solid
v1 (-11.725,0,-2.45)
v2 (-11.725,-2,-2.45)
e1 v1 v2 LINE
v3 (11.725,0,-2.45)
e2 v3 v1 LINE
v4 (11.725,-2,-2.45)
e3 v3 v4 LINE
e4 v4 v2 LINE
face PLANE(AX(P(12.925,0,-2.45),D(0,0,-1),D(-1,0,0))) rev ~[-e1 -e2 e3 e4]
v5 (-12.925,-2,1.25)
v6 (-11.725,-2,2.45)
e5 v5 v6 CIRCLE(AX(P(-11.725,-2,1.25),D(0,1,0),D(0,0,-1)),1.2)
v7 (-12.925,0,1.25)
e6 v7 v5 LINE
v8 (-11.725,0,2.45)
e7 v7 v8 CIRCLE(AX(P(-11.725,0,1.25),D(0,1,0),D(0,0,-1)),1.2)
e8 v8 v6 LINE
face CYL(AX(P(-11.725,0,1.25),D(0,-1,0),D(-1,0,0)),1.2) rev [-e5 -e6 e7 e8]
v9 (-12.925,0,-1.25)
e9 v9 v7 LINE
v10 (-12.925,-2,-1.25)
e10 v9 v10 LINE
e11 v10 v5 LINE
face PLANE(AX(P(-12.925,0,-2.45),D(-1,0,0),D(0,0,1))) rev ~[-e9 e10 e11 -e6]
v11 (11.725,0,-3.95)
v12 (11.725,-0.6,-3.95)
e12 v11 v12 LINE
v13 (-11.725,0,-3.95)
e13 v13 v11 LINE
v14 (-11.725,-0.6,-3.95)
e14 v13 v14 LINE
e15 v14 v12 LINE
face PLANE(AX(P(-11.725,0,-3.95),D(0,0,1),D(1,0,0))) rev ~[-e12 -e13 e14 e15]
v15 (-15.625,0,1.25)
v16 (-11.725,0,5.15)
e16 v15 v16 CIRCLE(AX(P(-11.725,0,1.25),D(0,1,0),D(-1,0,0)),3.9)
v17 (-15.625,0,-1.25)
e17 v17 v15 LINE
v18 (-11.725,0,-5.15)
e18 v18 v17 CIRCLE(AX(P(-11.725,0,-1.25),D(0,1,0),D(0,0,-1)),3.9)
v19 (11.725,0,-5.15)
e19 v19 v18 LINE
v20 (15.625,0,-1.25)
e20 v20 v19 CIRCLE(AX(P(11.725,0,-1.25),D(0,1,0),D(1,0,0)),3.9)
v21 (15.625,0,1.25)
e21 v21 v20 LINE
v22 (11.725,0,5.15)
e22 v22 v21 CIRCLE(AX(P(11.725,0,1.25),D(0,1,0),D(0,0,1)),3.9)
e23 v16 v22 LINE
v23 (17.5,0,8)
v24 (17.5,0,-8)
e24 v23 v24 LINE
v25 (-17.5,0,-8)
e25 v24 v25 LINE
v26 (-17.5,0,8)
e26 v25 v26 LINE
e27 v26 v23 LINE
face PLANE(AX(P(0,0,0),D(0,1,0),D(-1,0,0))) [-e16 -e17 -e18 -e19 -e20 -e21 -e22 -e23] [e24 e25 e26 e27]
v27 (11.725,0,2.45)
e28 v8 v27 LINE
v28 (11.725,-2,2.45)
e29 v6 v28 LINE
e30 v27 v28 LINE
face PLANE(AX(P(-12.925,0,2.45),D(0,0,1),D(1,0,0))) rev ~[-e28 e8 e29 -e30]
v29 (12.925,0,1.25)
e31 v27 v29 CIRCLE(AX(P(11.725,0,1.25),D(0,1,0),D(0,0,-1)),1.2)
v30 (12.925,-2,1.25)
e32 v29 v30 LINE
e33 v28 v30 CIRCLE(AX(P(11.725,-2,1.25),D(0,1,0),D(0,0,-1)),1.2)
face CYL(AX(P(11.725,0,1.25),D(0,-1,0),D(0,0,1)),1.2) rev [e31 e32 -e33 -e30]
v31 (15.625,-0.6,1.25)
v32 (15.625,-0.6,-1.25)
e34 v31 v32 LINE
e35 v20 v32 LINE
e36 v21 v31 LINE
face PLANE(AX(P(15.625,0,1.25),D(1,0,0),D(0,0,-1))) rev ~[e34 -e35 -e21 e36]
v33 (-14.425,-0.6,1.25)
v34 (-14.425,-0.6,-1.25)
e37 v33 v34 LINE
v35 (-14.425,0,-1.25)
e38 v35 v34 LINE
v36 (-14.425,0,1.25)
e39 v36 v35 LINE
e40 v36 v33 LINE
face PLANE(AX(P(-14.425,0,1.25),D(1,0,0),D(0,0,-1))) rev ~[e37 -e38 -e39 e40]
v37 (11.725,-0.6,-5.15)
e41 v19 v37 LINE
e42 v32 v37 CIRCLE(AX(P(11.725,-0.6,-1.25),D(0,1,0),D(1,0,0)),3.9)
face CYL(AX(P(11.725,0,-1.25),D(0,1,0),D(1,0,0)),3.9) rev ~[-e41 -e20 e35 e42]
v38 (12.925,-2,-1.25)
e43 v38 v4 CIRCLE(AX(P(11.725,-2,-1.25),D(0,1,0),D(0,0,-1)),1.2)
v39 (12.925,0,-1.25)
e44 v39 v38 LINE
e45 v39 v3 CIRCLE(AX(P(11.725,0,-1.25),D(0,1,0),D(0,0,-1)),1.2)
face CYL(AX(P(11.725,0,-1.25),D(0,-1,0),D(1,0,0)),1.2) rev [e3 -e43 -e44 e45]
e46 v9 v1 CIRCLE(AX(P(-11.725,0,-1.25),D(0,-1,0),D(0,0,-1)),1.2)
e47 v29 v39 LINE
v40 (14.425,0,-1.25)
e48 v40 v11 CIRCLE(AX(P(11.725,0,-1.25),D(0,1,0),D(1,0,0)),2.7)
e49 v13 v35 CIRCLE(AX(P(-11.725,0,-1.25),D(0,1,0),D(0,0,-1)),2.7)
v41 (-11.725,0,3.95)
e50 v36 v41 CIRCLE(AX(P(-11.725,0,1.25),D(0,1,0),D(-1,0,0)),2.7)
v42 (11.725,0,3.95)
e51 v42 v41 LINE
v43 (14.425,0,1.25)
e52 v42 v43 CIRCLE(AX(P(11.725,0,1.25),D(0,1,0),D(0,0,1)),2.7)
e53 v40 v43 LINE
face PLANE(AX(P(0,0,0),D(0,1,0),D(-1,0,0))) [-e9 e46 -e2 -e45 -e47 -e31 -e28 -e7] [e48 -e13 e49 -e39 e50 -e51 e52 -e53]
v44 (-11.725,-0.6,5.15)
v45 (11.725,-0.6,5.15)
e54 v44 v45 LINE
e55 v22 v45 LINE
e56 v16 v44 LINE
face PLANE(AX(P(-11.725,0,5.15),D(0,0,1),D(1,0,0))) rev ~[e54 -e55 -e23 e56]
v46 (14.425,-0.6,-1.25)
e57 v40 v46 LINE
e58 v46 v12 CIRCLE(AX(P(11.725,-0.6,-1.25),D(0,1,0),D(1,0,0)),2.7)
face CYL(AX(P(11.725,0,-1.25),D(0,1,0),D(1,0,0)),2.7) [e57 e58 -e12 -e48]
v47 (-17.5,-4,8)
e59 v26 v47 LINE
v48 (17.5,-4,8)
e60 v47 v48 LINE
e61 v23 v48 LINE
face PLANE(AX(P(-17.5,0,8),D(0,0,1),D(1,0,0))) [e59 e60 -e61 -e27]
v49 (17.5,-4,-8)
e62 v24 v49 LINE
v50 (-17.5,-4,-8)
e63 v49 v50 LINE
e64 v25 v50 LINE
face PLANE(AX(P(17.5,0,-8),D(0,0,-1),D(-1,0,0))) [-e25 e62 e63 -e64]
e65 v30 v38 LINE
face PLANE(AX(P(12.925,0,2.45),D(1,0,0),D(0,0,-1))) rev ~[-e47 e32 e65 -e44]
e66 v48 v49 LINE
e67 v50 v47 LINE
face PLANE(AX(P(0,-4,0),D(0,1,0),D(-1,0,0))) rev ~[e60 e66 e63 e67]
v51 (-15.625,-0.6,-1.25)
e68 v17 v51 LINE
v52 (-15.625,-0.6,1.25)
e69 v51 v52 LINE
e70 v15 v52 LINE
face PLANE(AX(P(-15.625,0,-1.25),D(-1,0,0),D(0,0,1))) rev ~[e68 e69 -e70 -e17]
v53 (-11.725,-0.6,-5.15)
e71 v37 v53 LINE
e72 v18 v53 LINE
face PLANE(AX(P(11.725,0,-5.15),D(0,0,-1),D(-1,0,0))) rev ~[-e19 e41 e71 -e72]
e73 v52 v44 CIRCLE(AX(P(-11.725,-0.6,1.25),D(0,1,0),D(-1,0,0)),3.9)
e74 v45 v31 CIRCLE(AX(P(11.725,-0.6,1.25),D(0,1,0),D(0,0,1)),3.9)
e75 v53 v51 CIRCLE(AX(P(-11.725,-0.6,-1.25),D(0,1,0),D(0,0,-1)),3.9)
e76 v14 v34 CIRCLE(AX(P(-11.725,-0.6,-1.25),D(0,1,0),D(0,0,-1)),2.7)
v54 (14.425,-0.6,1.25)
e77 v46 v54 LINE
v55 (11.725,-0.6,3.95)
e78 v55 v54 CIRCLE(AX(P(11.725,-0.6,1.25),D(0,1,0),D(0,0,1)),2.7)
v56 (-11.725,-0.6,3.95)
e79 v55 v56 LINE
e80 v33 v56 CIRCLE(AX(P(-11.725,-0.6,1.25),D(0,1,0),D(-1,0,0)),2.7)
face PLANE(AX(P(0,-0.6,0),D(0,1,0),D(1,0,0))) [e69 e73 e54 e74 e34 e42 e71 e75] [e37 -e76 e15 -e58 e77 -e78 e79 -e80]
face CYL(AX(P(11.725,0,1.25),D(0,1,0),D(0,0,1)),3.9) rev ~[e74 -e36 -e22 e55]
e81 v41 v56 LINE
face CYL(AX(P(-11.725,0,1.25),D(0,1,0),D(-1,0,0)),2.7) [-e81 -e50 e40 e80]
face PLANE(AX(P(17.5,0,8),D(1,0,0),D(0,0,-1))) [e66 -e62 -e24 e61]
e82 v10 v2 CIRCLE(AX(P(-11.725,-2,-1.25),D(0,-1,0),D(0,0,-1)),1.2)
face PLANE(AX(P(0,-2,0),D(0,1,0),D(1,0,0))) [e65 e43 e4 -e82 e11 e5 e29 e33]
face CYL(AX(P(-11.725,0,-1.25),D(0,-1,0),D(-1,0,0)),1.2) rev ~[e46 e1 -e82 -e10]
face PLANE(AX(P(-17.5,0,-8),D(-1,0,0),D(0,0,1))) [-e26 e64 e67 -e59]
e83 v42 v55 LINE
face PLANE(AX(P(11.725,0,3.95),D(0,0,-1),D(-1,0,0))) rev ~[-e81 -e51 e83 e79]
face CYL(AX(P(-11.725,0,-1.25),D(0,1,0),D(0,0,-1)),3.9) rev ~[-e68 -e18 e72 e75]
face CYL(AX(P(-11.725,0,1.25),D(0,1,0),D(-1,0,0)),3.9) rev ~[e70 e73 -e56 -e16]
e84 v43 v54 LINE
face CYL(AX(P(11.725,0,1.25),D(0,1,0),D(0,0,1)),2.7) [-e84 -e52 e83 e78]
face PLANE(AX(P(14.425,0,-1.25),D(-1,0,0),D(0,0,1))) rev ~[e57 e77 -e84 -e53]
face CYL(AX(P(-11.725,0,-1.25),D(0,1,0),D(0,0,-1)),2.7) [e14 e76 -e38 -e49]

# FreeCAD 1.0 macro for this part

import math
import FreeCAD as App
import Part
import Sketcher

V = App.Vector


def edges_at(feature, points):
    """Names of the edges that pass closest to the given points."""
    edges = feature.Shape.Edges
    near = lambda p: min(range(len(edges)), key=lambda i: edges[i].distToShape(Part.Vertex(*p))[0])
    return sorted({f"Edge{near(p) + 1}" for p in points})

doc = App.newDocument("Part")
body = doc.addObject("PartDesign::Body", "Body")

sketch1 = body.newObject("Sketcher::SketchObject", "Sketch")
sketch1.AttachmentSupport = (doc.getObject("XZ_Plane"), [""])
sketch1.MapMode = "FlatFace"
sketch1.addGeometry([
    Part.LineSegment(V(-18, -8, 0), V(-18, 8, 0)),
    Part.LineSegment(V(-18, 8, 0), V(18, 8, 0)),
    Part.LineSegment(V(18, 8, 0), V(18, -8, 0)),
    Part.LineSegment(V(18, -8, 0), V(-18, -8, 0)),
], False)
sketch1.addConstraint([
    Sketcher.Constraint("Coincident", 0, 2, 1, 1),
    Sketcher.Constraint("Coincident", 1, 2, 2, 1),
    Sketcher.Constraint("Coincident", 2, 2, 3, 1),
    Sketcher.Constraint("Coincident", 3, 2, 0, 1),
    Sketcher.Constraint("Vertical", 0),
    Sketcher.Constraint("Horizontal", 1),
    Sketcher.Constraint("Vertical", 2),
    Sketcher.Constraint("Horizontal", 3),
    Sketcher.Constraint("Symmetric", 0, 2, 2, 2, -1, 1),
    Sketcher.Constraint("DistanceX", 1, 1, 1, 2, 35.0),
    Sketcher.Constraint("DistanceY", 0, 1, 0, 2, 16.0),
])
pad1 = body.newObject("PartDesign::Pad", "Pad")
pad1.Profile = sketch1
pad1.Length = 4

sketch2 = body.newObject("Sketcher::SketchObject", "Sketch001")
sketch2.AttachmentSupport = (doc.getObject("XZ_Plane"), [""])
sketch2.MapMode = "FlatFace"
sketch2.addGeometry([
    Part.LineSegment(V(-12.9, -2.5, 0), V(-12.9, 2.5, 0)),
    Part.LineSegment(V(-12.9, 2.5, 0), V(12.9, 2.5, 0)),
    Part.LineSegment(V(12.9, 2.5, 0), V(12.9, -2.5, 0)),
    Part.LineSegment(V(12.9, -2.5, 0), V(-12.9, -2.5, 0)),
], False)
sketch2.addConstraint([
    Sketcher.Constraint("Coincident", 0, 2, 1, 1),
    Sketcher.Constraint("Coincident", 1, 2, 2, 1),
    Sketcher.Constraint("Coincident", 2, 2, 3, 1),
    Sketcher.Constraint("Coincident", 3, 2, 0, 1),
    Sketcher.Constraint("Vertical", 0),
    Sketcher.Constraint("Horizontal", 1),
    Sketcher.Constraint("Vertical", 2),
    Sketcher.Constraint("Horizontal", 3),
    Sketcher.Constraint("Symmetric", 0, 2, 2, 2, -1, 1),
    Sketcher.Constraint("DistanceY", 0, 1, 0, 2, 4.9),
    Sketcher.Constraint("DistanceX", 1, 1, 1, 2, 25.85),
])
pocket1 = body.newObject("PartDesign::Pocket", "Pocket")
pocket1.Profile = sketch2
pocket1.Length = 2
pocket1.Reversed = True
doc.recompute()

fillet = body.newObject("PartDesign::Fillet", "Fillet")
fillet.Base = (pocket1, edges_at(pocket1, [
    (12.925, -1, 2.45),
    (-12.925, -1, 2.45),
    (-12.925, -1, -2.45),
    (12.925, -1, -2.45),
]))
fillet.Radius = 1.2

sketch3 = body.newObject("Sketcher::SketchObject", "Sketch002")
sketch3.AttachmentSupport = (doc.getObject("XZ_Plane"), [""])
sketch3.MapMode = "FlatFace"
sketch3.addGeometry([
    Part.ArcOfCircle(Part.Circle(V(-11.7, -1.2, 0), V(0, 0, 1), 3.9), math.radians(180), math.radians(270)),
    Part.LineSegment(V(-15.6, -1.2, 0), V(-15.6, 1.2, 0)),
    Part.ArcOfCircle(Part.Circle(V(-11.7, 1.2, 0), V(0, 0, 1), 3.9), math.radians(90), math.radians(180)),
    Part.LineSegment(V(-11.7, 5.2, 0), V(11.7, 5.2, 0)),
    Part.ArcOfCircle(Part.Circle(V(11.7, 1.2, 0), V(0, 0, 1), 3.9), math.radians(0), math.radians(90)),
    Part.LineSegment(V(15.6, 1.2, 0), V(15.6, -1.2, 0)),
    Part.ArcOfCircle(Part.Circle(V(11.7, -1.2, 0), V(0, 0, 1), 3.9), math.radians(-90), math.radians(0)),
    Part.LineSegment(V(11.7, -5.2, 0), V(-11.7, -5.2, 0)),
    Part.ArcOfCircle(Part.Circle(V(11.7, -1.2, 0), V(0, 0, 1), 2.7), math.radians(-90), math.radians(0)),
    Part.LineSegment(V(14.4, -1.2, 0), V(14.4, 1.2, 0)),
    Part.ArcOfCircle(Part.Circle(V(11.7, 1.2, 0), V(0, 0, 1), 2.7), math.radians(0), math.radians(90)),
    Part.LineSegment(V(11.7, 4, 0), V(-11.7, 4, 0)),
    Part.ArcOfCircle(Part.Circle(V(-11.7, 1.2, 0), V(0, 0, 1), 2.7), math.radians(90), math.radians(180)),
    Part.LineSegment(V(-14.4, 1.2, 0), V(-14.4, -1.2, 0)),
    Part.ArcOfCircle(Part.Circle(V(-11.7, -1.2, 0), V(0, 0, 1), 2.7), math.radians(180), math.radians(270)),
    Part.LineSegment(V(-11.7, -4, 0), V(11.7, -4, 0)),
], False)
sketch3.addConstraint([
    Sketcher.Constraint("Tangent", 0, 1, 1, 1),
    Sketcher.Constraint("Tangent", 1, 2, 2, 2),
    Sketcher.Constraint("Tangent", 2, 1, 3, 1),
    Sketcher.Constraint("Tangent", 3, 2, 4, 2),
    Sketcher.Constraint("Tangent", 4, 1, 5, 1),
    Sketcher.Constraint("Tangent", 5, 2, 6, 2),
    Sketcher.Constraint("Tangent", 6, 1, 7, 1),
    Sketcher.Constraint("Tangent", 7, 2, 0, 2),
    Sketcher.Constraint("Tangent", 8, 2, 9, 1),
    Sketcher.Constraint("Tangent", 9, 2, 10, 1),
    Sketcher.Constraint("Tangent", 10, 2, 11, 1),
    Sketcher.Constraint("Tangent", 11, 2, 12, 1),
    Sketcher.Constraint("Tangent", 12, 2, 13, 1),
    Sketcher.Constraint("Tangent", 13, 2, 14, 1),
    Sketcher.Constraint("Tangent", 14, 2, 15, 1),
    Sketcher.Constraint("Tangent", 15, 2, 8, 1),
    Sketcher.Constraint("Vertical", 1),
    Sketcher.Constraint("Horizontal", 3),
    Sketcher.Constraint("Vertical", 5),
    Sketcher.Constraint("Horizontal", 7),
    Sketcher.Constraint("Vertical", 9),
    Sketcher.Constraint("Horizontal", 11),
    Sketcher.Constraint("Vertical", 13),
    Sketcher.Constraint("Horizontal", 15),
    Sketcher.Constraint("Coincident", 8, 3, 6, 3),
    Sketcher.Constraint("Coincident", 10, 3, 4, 3),
    Sketcher.Constraint("Coincident", 12, 3, 2, 3),
    Sketcher.Constraint("Equal", 0, 2),
    Sketcher.Constraint("Equal", 2, 4),
    Sketcher.Constraint("Equal", 4, 6),
    Sketcher.Constraint("Equal", 12, 14),
    Sketcher.Constraint("Symmetric", 0, 3, 4, 3, -1, 1),
    Sketcher.Constraint("Radius", 0, 3.9),
    Sketcher.Constraint("Radius", 8, 2.7),
    Sketcher.Constraint("DistanceY", 1, 1, 1, 2, 2.5),
    Sketcher.Constraint("DistanceX", 3, 1, 3, 2, 23.45),
])
pocket2 = body.newObject("PartDesign::Pocket", "Pocket001")
pocket2.Profile = sketch3
pocket2.Length = 0.6
pocket2.Reversed = True

doc.recompute()
